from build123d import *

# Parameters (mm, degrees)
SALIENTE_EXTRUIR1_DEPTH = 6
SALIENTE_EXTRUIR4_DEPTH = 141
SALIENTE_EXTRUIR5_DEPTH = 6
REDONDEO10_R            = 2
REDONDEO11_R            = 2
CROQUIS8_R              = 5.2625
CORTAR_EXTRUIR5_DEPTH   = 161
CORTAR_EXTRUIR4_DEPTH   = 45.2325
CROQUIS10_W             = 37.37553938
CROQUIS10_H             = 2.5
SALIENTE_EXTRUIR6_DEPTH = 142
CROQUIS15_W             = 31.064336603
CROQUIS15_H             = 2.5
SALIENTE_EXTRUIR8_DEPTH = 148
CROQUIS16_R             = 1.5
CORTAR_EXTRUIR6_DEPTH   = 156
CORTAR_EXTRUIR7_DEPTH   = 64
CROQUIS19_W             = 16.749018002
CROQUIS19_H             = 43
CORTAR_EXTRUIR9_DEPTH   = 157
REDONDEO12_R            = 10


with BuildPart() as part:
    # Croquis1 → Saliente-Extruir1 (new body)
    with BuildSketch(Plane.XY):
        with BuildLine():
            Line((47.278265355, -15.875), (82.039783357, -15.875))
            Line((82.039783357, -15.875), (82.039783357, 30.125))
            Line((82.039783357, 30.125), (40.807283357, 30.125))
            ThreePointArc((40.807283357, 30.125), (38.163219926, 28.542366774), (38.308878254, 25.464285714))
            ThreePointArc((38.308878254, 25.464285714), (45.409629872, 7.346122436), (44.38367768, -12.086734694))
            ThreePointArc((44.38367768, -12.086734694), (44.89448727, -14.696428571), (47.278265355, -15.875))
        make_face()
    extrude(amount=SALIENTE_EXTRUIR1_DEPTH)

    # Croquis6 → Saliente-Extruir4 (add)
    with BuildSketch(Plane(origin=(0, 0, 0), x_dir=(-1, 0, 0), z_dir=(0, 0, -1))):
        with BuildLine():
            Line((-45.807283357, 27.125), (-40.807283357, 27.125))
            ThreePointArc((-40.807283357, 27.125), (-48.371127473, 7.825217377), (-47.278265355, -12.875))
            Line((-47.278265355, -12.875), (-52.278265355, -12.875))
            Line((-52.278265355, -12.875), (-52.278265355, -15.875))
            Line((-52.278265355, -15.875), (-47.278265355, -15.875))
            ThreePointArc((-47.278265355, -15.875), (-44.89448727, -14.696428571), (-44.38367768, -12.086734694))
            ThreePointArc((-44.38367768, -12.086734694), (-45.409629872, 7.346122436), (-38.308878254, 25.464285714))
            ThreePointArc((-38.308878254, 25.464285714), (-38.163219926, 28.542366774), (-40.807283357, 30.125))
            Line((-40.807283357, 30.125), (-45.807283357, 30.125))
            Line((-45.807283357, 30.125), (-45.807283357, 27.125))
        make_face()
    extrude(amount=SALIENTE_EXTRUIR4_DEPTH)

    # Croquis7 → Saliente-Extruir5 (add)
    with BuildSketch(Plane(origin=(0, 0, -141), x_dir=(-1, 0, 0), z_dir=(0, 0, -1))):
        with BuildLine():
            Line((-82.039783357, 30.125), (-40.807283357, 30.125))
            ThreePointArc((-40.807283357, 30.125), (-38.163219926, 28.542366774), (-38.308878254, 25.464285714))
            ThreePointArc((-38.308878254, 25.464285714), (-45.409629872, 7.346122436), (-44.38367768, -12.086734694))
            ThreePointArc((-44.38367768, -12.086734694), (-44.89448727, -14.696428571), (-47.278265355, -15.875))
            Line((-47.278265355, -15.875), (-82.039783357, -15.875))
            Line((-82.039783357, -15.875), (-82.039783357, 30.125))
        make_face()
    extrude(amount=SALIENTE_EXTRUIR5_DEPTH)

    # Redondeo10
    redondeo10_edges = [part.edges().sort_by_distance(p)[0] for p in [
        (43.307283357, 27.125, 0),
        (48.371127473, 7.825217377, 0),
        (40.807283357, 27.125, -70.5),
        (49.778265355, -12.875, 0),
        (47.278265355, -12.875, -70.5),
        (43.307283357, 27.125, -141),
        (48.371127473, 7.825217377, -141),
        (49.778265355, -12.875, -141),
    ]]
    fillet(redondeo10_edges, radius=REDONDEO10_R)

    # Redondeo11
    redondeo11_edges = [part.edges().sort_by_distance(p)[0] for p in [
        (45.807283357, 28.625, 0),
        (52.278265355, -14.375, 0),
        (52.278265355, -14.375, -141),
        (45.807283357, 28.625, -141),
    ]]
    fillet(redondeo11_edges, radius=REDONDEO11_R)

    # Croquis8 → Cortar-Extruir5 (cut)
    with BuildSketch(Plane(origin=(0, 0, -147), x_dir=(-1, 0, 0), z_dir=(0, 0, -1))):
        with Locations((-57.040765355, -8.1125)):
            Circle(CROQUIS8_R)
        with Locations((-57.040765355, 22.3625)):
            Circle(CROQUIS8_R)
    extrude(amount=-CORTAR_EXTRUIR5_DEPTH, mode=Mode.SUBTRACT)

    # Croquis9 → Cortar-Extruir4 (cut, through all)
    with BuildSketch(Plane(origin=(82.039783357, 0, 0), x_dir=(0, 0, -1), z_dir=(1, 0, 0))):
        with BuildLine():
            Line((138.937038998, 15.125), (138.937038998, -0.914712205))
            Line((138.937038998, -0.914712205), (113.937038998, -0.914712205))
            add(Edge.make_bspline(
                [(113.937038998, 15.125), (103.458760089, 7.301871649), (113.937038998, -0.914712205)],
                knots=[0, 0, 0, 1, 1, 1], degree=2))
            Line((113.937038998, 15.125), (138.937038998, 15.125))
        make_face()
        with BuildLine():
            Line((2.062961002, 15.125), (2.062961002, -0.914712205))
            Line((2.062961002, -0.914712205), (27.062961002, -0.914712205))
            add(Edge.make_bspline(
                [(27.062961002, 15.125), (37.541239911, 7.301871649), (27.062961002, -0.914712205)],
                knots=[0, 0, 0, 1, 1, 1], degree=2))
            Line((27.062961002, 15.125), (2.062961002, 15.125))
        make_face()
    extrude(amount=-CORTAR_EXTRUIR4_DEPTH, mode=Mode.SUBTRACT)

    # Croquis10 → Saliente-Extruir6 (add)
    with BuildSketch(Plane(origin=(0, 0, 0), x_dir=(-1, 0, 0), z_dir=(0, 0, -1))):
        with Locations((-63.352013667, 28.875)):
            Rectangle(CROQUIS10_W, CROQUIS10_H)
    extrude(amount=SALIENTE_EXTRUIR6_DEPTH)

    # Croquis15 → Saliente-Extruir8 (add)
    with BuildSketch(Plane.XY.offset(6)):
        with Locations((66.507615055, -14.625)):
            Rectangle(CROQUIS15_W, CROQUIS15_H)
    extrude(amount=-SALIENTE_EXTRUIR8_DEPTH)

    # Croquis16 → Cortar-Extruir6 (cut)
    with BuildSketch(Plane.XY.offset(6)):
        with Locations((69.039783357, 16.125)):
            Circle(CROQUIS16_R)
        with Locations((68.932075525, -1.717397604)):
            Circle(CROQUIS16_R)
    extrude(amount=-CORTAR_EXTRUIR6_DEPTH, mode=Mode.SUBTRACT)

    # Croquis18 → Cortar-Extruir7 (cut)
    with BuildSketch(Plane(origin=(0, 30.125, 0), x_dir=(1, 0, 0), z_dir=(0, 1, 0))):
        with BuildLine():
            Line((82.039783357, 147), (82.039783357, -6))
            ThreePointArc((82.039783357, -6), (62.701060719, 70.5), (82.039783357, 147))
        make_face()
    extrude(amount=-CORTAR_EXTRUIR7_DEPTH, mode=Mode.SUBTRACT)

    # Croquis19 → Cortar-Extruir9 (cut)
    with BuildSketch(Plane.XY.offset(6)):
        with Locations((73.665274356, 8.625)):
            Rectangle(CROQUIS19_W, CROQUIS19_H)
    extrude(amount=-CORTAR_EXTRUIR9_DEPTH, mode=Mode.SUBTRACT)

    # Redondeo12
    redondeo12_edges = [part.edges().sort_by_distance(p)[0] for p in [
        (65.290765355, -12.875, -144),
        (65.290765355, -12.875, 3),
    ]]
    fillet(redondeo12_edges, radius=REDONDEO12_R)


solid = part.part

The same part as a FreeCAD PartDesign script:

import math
import FreeCAD as App
import Part
import Sketcher

V = App.Vector


def edges_at(feature, points):
    """Names of the edges that pass closest to the given points."""
    edges = feature.Shape.Edges
    near = lambda p: min(range(len(edges)), key=lambda i: edges[i].distToShape(Part.Vertex(*p))[0])
    return sorted({f"Edge{near(p) + 1}" for p in points})


def add_polygon(sketch, points):
    """Adds a closed chain of lines whose ends are joined by coincident constraints."""
    first, n = sketch.GeometryCount, len(points)
    for a, b in zip(points, points[1:] + points[:1]):
        sketch.addGeometry(Part.LineSegment(App.Vector(*a, 0), App.Vector(*b, 0)), False)
    for i in range(n):
        sketch.addConstraint(Sketcher.Constraint("Coincident", first + i, 2, first + (i + 1) % n, 1))

doc = App.newDocument("Part")
body = doc.addObject("PartDesign::Body", "Body")

# Sketch on XY plane
sketch1 = body.newObject("Sketcher::SketchObject", "Sketch")
sketch1.AttachmentSupport = (doc.getObject("XY_Plane"), [""])
sketch1.MapMode = "FlatFace"
sketch1.addGeometry([
    Part.LineSegment(V(47.3, -15.9, 0), V(82, -15.9, 0)),  # 0
    Part.LineSegment(V(82, -15.9, 0), V(82, 30.1, 0)),  # 1
    Part.LineSegment(V(82, 30.1, 0), V(40.8, 30.1, 0)),  # 2
    Part.ArcOfCircle(Part.Circle(V(40.8, 27.1, 0), V(0, 0, 1), 3), math.radians(90), math.radians(214)),  # 3
    Part.ArcOfCircle(Part.Circle(V(0, 0, 0), V(0, 0, 1), 46), math.radians(-15), math.radians(34)),  # 4
    Part.ArcOfCircle(Part.Circle(V(47.3, -12.9, 0), V(0, 0, 1), 3), math.radians(165), math.radians(270)),  # 5
], False)
sketch1.addConstraint([
    Sketcher.Constraint("Coincident", 0, 2, 1, 1),
    Sketcher.Constraint("Coincident", 1, 2, 2, 1),
    Sketcher.Constraint("Tangent", 2, 2, 3, 1),
    Sketcher.Constraint("Tangent", 3, 2, 4, 2),
    Sketcher.Constraint("Tangent", 4, 1, 5, 1),
    Sketcher.Constraint("Tangent", 5, 2, 0, 1),
    Sketcher.Constraint("Horizontal", 0),
    Sketcher.Constraint("Vertical", 1),
    Sketcher.Constraint("Horizontal", 2),
    Sketcher.Constraint("Coincident", 4, 3, -1, 1),
    Sketcher.Constraint("Equal", 3, 5),
    Sketcher.Constraint("Radius", 3, 3.0),
    Sketcher.Constraint("Radius", 4, 46.0),
    Sketcher.Constraint("DistanceY", 1, 1, 1, 2, 46.0),
    Sketcher.Constraint("DistanceX", 2, 2, 2, 1, 41.2325),
    Sketcher.Constraint("DistanceY", -1, 1, 3, 3, 27.125),
])
pad1 = body.newObject("PartDesign::Pad", "Pad")
pad1.Profile = sketch1
pad1.Length = 6

# Sketch on XY plane
sketch2 = body.newObject("Sketcher::SketchObject", "Sketch001")
sketch2.AttachmentSupport = (doc.getObject("XY_Plane"), [""])
sketch2.MapMode = "FlatFace"
sketch2.addGeometry([
    Part.LineSegment(V(45.8, 27.1, 0), V(40.8, 27.1, 0)),  # 0
    Part.ArcOfCircle(Part.Circle(V(0, 0, 0), V(0, 0, 1), 49), math.radians(-15), math.radians(34)),  # 1
    Part.LineSegment(V(47.3, -12.9, 0), V(52.3, -12.9, 0)),  # 2
    Part.LineSegment(V(52.3, -12.9, 0), V(52.3, -15.9, 0)),  # 3
    Part.LineSegment(V(52.3, -15.9, 0), V(47.3, -15.9, 0)),  # 4
    Part.ArcOfCircle(Part.Circle(V(47.3, -12.9, 0), V(0, 0, 1), 3), math.radians(165), math.radians(270)),  # 5
    Part.ArcOfCircle(Part.Circle(V(0, 0, 0), V(0, 0, 1), 46), math.radians(-15), math.radians(34)),  # 6
    Part.ArcOfCircle(Part.Circle(V(40.8, 27.1, 0), V(0, 0, 1), 3), math.radians(90), math.radians(214)),  # 7
    Part.LineSegment(V(40.8, 30.1, 0), V(45.8, 30.1, 0)),  # 8
    Part.LineSegment(V(45.8, 30.1, 0), V(45.8, 27.1, 0)),  # 9
], False)
sketch2.addConstraint([
    Sketcher.Constraint("Coincident", 0, 2, 1, 2),
    Sketcher.Constraint("Coincident", 1, 1, 2, 1),
    Sketcher.Constraint("Coincident", 2, 2, 3, 1),
    Sketcher.Constraint("Coincident", 3, 2, 4, 1),
    Sketcher.Constraint("Tangent", 4, 2, 5, 2),
    Sketcher.Constraint("Tangent", 5, 1, 6, 1),
    Sketcher.Constraint("Tangent", 6, 2, 7, 2),
    Sketcher.Constraint("Tangent", 7, 1, 8, 1),
    Sketcher.Constraint("Coincident", 8, 2, 9, 1),
    Sketcher.Constraint("Coincident", 9, 2, 0, 1),
    Sketcher.Constraint("Horizontal", 0),
    Sketcher.Constraint("Horizontal", 2),
    Sketcher.Constraint("Vertical", 3),
    Sketcher.Constraint("Horizontal", 4),
    Sketcher.Constraint("Horizontal", 8),
    Sketcher.Constraint("Vertical", 9),
    Sketcher.Constraint("Coincident", 1, 3, -1, 1),
    Sketcher.Constraint("Coincident", 6, 3, -1, 1),
    Sketcher.Constraint("Coincident", 0, 2, 7, 3),
    Sketcher.Constraint("Coincident", 1, 1, 5, 3),
    Sketcher.Constraint("Equal", 0, 2),
    Sketcher.Constraint("Radius", 1, 49.0),
    Sketcher.Constraint("Radius", 5, 3.0),
    Sketcher.Constraint("DistanceX", 0, 2, 0, 1, 5.0),
    Sketcher.Constraint("DistanceY", 5, 3, 7, 3, 40.0),
    Sketcher.Constraint("DistanceY", 5, 3, -1, 1, 12.875),
])
pad2 = body.newObject("PartDesign::Pad", "Pad001")
pad2.Profile = sketch2
pad2.Length = 141
pad2.Reversed = True

# Sketch on XY plane
sketch3 = body.newObject("Sketcher::SketchObject", "Sketch002")
sketch3.AttachmentSupport = (doc.getObject("XY_Plane"), [""])
sketch3.MapMode = "FlatFace"
sketch3.AttachmentOffset = App.Placement(V(0, 0, -141), App.Rotation())
sketch3.addGeometry([
    Part.LineSegment(V(40.8, 30.1, 0), V(82, 30.1, 0)),  # 0
    Part.LineSegment(V(82, 30.1, 0), V(82, -15.9, 0)),  # 1
    Part.LineSegment(V(82, -15.9, 0), V(47.3, -15.9, 0)),  # 2
    Part.ArcOfCircle(Part.Circle(V(47.3, -12.9, 0), V(0, 0, 1), 3), math.radians(165), math.radians(270)),  # 3
    Part.ArcOfCircle(Part.Circle(V(0, 0, 0), V(0, 0, 1), 46), math.radians(-15), math.radians(34)),  # 4
    Part.ArcOfCircle(Part.Circle(V(40.8, 27.1, 0), V(0, 0, 1), 3), math.radians(90), math.radians(214)),  # 5
], False)
sketch3.addConstraint([
    Sketcher.Constraint("Coincident", 0, 2, 1, 1),
    Sketcher.Constraint("Coincident", 1, 2, 2, 1),
    Sketcher.Constraint("Tangent", 2, 2, 3, 2),
    Sketcher.Constraint("Tangent", 3, 1, 4, 1),
    Sketcher.Constraint("Tangent", 4, 2, 5, 2),
    Sketcher.Constraint("Tangent", 5, 1, 0, 1),
    Sketcher.Constraint("Horizontal", 0),
    Sketcher.Constraint("Vertical", 1),
    Sketcher.Constraint("Horizontal", 2),
    Sketcher.Constraint("Coincident", 4, 3, -1, 1),
    Sketcher.Constraint("Equal", 3, 5),
    Sketcher.Constraint("Radius", 3, 3.0),
    Sketcher.Constraint("Radius", 4, 46.0),
    Sketcher.Constraint("DistanceY", 1, 2, 1, 1, 46.0),
    Sketcher.Constraint("DistanceX", 0, 1, 0, 2, 41.2325),
    Sketcher.Constraint("DistanceY", 3, 3, -1, 1, 12.875),
])
pad3 = body.newObject("PartDesign::Pad", "Pad002")
pad3.Profile = sketch3
pad3.Length = 6
pad3.Reversed = True
doc.recompute()

fillet = body.newObject("PartDesign::Fillet", "Fillet")
fillet.Base = (pad3, edges_at(pad3, [
    (43.307, 27.125, 0),
    (48.371, 7.825, 0),
    (40.807, 27.125, -70.5),
    (49.778, -12.875, 0),
    (47.278, -12.875, -70.5),
    (43.307, 27.125, -141),
    (48.371, 7.825, -141),
    (49.778, -12.875, -141),
]))
fillet.Radius = 2
doc.recompute()

fillet2 = body.newObject("PartDesign::Fillet", "Fillet001")
fillet2.Base = (fillet, edges_at(fillet, [
    (45.807, 27.625, 0),
    (52.278, -13.375, 0),
    (52.278, -13.375, -141),
    (45.807, 27.625, -141),
]))
fillet2.Radius = 2

# Sketch on XY plane
sketch4 = body.newObject("Sketcher::SketchObject", "Sketch003")
sketch4.AttachmentSupport = (doc.getObject("XY_Plane"), [""])
sketch4.MapMode = "FlatFace"
sketch4.AttachmentOffset = App.Placement(V(0, 0, -147), App.Rotation())
sketch4.addGeometry([
    Part.Circle(V(57, -8, 0), V(0, 0, 1), 5),
    Part.Circle(V(57, 22, 0), V(0, 0, 1), 5),
], False)
sketch4.addConstraint([
    Sketcher.Constraint("Equal", 0, 1),
    Sketcher.Constraint("Vertical", 0, 3, 1, 3),
    Sketcher.Constraint("Diameter", 0, 10.525),
    Sketcher.Constraint("DistanceY", 0, 3, 1, 3, 30.475),
    Sketcher.Constraint("DistanceY", 0, 3, -1, 1, 8.1125),
    Sketcher.Constraint("DistanceX", -1, 1, 0, 3, 57.040765),
])
pocket1 = body.newObject("PartDesign::Pocket", "Pocket")
pocket1.Profile = sketch4
pocket1.Length = 161
pocket1.Reversed = True

# Sketch on YZ plane
sketch5 = body.newObject("Sketcher::SketchObject", "Sketch004")
sketch5.AttachmentSupport = (doc.getObject("YZ_Plane"), [""])
sketch5.MapMode = "FlatFace"
sketch5.AttachmentOffset = App.Placement(V(0, 0, 82.039783), App.Rotation())
sketch5.addGeometry([
    Part.LineSegment(V(-0.914712, -138.937039, 0), V(15.125, -138.937039, 0)),  # 0
    Part.LineSegment(V(15.125, -138.937039, 0), V(15.125, -113.937039, 0)),  # 1
    Part.BSplineCurve([V(15.125, -113.937039, 0), V(7.301872, -103.45876, 0), V(-0.914712, -113.937039, 0)], [3, 3], [0, 1], False, 2, [1, 1, 1], False),  # 2
    Part.LineSegment(V(-0.914712, -113.937039, 0), V(-0.914712, -138.937039, 0)),  # 3
    Part.LineSegment(V(15.125, -2.062961, 0), V(-0.914712, -2.062961, 0)),  # 4
    Part.LineSegment(V(-0.914712, -2.062961, 0), V(-0.914712, -27.062961, 0)),  # 5
    Part.BSplineCurve([V(15.125, -27.062961, 0), V(7.301872, -37.54124, 0), V(-0.914712, -27.062961, 0)], [3, 3], [0, 1], False, 2, [1, 1, 1], False),  # 6
    Part.LineSegment(V(15.125, -27.062961, 0), V(15.125, -2.062961, 0)),  # 7
], False)
sketch5.addConstraint([
    Sketcher.Constraint("Block", 2),
    Sketcher.Constraint("Block", 6),
    Sketcher.Constraint("Coincident", 0, 2, 1, 1),
    Sketcher.Constraint("Coincident", 1, 2, 2, 1),
    Sketcher.Constraint("Coincident", 2, 2, 3, 1),
    Sketcher.Constraint("Coincident", 3, 2, 0, 1),
    Sketcher.Constraint("Coincident", 4, 2, 5, 1),
    Sketcher.Constraint("Coincident", 5, 2, 6, 2),
    Sketcher.Constraint("Coincident", 6, 1, 7, 1),
    Sketcher.Constraint("Coincident", 7, 2, 4, 1),
    Sketcher.Constraint("Horizontal", 0),
    Sketcher.Constraint("Vertical", 1),
    Sketcher.Constraint("Vertical", 3),
    Sketcher.Constraint("Horizontal", 4),
    Sketcher.Constraint("Vertical", 5),
    Sketcher.Constraint("Vertical", 7),
    Sketcher.Constraint("Equal", 3, 5),
    Sketcher.Constraint("DistanceY", 1, 1, 1, 2, 25.0),
])
pocket2 = body.newObject("PartDesign::Pocket", "Pocket001")
pocket2.Profile = sketch5
pocket2.Type = "ThroughAll"

# Sketch on XY plane
sketch6 = body.newObject("Sketcher::SketchObject", "Sketch005")
sketch6.AttachmentSupport = (doc.getObject("XY_Plane"), [""])
sketch6.MapMode = "FlatFace"
add_polygon(sketch6, [(82, 30.1), (82, 27.6), (44.7, 27.6), (44.7, 30.1)])  # lines 0-3
sketch6.addConstraint([
    Sketcher.Constraint("Vertical", 0),
    Sketcher.Constraint("Horizontal", 1),
    Sketcher.Constraint("Vertical", 2),
    Sketcher.Constraint("Horizontal", 3),
    Sketcher.Constraint("DistanceY", 0, 2, 0, 1, 2.5),
    Sketcher.Constraint("DistanceY", -1, 1, 0, 2, 27.625),
    Sketcher.Constraint("DistanceX", 1, 2, 1, 1, 37.375539),
    Sketcher.Constraint("DistanceX", -1, 1, 0, 2, 82.039783),
])
pad4 = body.newObject("PartDesign::Pad", "Pad003")
pad4.Profile = sketch6
pad4.Length = 142
pad4.Reversed = True

# Sketch on XY plane
sketch7 = body.newObject("Sketcher::SketchObject", "Sketch006")
sketch7.AttachmentSupport = (doc.getObject("XY_Plane"), [""])
sketch7.MapMode = "FlatFace"
sketch7.AttachmentOffset = App.Placement(V(0, 0, 6), App.Rotation())
add_polygon(sketch7, [(51, -13.4), (51, -15.9), (82, -15.9), (82, -13.4)])  # lines 0-3
sketch7.addConstraint([
    Sketcher.Constraint("Vertical", 0),
    Sketcher.Constraint("Horizontal", 1),
    Sketcher.Constraint("Vertical", 2),
    Sketcher.Constraint("Horizontal", 3),
    Sketcher.Constraint("DistanceY", 0, 2, 0, 1, 2.5),
    Sketcher.Constraint("DistanceY", 0, 2, -1, 1, 15.875),
    Sketcher.Constraint("DistanceX", 1, 1, 1, 2, 31.064337),
    Sketcher.Constraint("DistanceX", -1, 1, 0, 2, 50.975447),
])
pad5 = body.newObject("PartDesign::Pad", "Pad004")
pad5.Profile = sketch7
pad5.Length = 148
pad5.Reversed = True

# Sketch on XY plane
sketch8 = body.newObject("Sketcher::SketchObject", "Sketch007")
sketch8.AttachmentSupport = (doc.getObject("XY_Plane"), [""])
sketch8.MapMode = "FlatFace"
sketch8.AttachmentOffset = App.Placement(V(0, 0, 6), App.Rotation())
sketch8.addGeometry([
    Part.Circle(V(69, 16.1, 0), V(0, 0, 1), 1.5),
    Part.Circle(V(68.9, -1.7, 0), V(0, 0, 1), 1.5),
], False)
sketch8.addConstraint([
    Sketcher.Constraint("Equal", 0, 1),
    Sketcher.Constraint("Diameter", 0, 3.0),
    Sketcher.Constraint("DistanceY", -1, 1, 0, 3, 16.125),
    Sketcher.Constraint("DistanceX", -1, 1, 0, 3, 69.039783),
    Sketcher.Constraint("DistanceX", -1, 1, 1, 3, 68.932076),
    Sketcher.Constraint("DistanceY", 1, 3, -1, 1, 1.717398),
])
pocket3 = body.newObject("PartDesign::Pocket", "Pocket002")
pocket3.Profile = sketch8
pocket3.Length = 156

# Sketch on XZ plane
sketch9 = body.newObject("Sketcher::SketchObject", "Sketch008")
sketch9.AttachmentSupport = (doc.getObject("XZ_Plane"), [""])
sketch9.MapMode = "FlatFace"
sketch9.AttachmentOffset = App.Placement(V(0, 0, -30.125), App.Rotation())
sketch9.addGeometry([
    Part.LineSegment(V(82, 6, 0), V(82, -147, 0)),
    Part.ArcOfCircle(Part.Circle(V(224, -70, 0), V(0, 0, 1), 161), math.radians(152), math.radians(208)),
], False)
sketch9.addConstraint([
    Sketcher.Constraint("Coincident", 0, 1, 1, 1),
    Sketcher.Constraint("Coincident", 1, 2, 0, 2),
    Sketcher.Constraint("Vertical", 0),
    Sketcher.Constraint("DistanceY", 0, 2, 0, 1, 153.0),
    Sketcher.Constraint("DistanceY", -1, 1, 0, 1, 6.0),
    Sketcher.Constraint("Radius", 1, 160.978476),
    Sketcher.Constraint("DistanceX", -1, 1, 1, 3, 223.679537),
])
pocket4 = body.newObject("PartDesign::Pocket", "Pocket003")
pocket4.Profile = sketch9
pocket4.Length = 64
pocket4.Reversed = True

# Sketch on XY plane
sketch10 = body.newObject("Sketcher::SketchObject", "Sketch009")
sketch10.AttachmentSupport = (doc.getObject("XY_Plane"), [""])
sketch10.MapMode = "FlatFace"
sketch10.AttachmentOffset = App.Placement(V(0, 0, 6), App.Rotation())
add_polygon(sketch10, [(65, 30), (65, -13), (82, -13), (82, 30)])  # lines 0-3
sketch10.addConstraint([
    Sketcher.Constraint("Vertical", 0),
    Sketcher.Constraint("Horizontal", 1),
    Sketcher.Constraint("Vertical", 2),
    Sketcher.Constraint("Horizontal", 3),
    Sketcher.Constraint("DistanceY", 0, 2, 0, 1, 43.0),
    Sketcher.Constraint("DistanceY", 0, 2, -1, 1, 12.875),
    Sketcher.Constraint("DistanceX", 1, 1, 1, 2, 16.749018),
    Sketcher.Constraint("DistanceX", -1, 1, 0, 2, 65.290765),
])
pocket5 = body.newObject("PartDesign::Pocket", "Pocket004")
pocket5.Profile = sketch10
pocket5.Length = 157
doc.recompute()

fillet3 = body.newObject("PartDesign::Fillet", "Fillet002")
fillet3.Base = (pocket5, edges_at(pocket5, [(65.291, -12.875, -144), (65.291, -12.875, 3)]))
fillet3.Radius = 10

doc.recompute()
